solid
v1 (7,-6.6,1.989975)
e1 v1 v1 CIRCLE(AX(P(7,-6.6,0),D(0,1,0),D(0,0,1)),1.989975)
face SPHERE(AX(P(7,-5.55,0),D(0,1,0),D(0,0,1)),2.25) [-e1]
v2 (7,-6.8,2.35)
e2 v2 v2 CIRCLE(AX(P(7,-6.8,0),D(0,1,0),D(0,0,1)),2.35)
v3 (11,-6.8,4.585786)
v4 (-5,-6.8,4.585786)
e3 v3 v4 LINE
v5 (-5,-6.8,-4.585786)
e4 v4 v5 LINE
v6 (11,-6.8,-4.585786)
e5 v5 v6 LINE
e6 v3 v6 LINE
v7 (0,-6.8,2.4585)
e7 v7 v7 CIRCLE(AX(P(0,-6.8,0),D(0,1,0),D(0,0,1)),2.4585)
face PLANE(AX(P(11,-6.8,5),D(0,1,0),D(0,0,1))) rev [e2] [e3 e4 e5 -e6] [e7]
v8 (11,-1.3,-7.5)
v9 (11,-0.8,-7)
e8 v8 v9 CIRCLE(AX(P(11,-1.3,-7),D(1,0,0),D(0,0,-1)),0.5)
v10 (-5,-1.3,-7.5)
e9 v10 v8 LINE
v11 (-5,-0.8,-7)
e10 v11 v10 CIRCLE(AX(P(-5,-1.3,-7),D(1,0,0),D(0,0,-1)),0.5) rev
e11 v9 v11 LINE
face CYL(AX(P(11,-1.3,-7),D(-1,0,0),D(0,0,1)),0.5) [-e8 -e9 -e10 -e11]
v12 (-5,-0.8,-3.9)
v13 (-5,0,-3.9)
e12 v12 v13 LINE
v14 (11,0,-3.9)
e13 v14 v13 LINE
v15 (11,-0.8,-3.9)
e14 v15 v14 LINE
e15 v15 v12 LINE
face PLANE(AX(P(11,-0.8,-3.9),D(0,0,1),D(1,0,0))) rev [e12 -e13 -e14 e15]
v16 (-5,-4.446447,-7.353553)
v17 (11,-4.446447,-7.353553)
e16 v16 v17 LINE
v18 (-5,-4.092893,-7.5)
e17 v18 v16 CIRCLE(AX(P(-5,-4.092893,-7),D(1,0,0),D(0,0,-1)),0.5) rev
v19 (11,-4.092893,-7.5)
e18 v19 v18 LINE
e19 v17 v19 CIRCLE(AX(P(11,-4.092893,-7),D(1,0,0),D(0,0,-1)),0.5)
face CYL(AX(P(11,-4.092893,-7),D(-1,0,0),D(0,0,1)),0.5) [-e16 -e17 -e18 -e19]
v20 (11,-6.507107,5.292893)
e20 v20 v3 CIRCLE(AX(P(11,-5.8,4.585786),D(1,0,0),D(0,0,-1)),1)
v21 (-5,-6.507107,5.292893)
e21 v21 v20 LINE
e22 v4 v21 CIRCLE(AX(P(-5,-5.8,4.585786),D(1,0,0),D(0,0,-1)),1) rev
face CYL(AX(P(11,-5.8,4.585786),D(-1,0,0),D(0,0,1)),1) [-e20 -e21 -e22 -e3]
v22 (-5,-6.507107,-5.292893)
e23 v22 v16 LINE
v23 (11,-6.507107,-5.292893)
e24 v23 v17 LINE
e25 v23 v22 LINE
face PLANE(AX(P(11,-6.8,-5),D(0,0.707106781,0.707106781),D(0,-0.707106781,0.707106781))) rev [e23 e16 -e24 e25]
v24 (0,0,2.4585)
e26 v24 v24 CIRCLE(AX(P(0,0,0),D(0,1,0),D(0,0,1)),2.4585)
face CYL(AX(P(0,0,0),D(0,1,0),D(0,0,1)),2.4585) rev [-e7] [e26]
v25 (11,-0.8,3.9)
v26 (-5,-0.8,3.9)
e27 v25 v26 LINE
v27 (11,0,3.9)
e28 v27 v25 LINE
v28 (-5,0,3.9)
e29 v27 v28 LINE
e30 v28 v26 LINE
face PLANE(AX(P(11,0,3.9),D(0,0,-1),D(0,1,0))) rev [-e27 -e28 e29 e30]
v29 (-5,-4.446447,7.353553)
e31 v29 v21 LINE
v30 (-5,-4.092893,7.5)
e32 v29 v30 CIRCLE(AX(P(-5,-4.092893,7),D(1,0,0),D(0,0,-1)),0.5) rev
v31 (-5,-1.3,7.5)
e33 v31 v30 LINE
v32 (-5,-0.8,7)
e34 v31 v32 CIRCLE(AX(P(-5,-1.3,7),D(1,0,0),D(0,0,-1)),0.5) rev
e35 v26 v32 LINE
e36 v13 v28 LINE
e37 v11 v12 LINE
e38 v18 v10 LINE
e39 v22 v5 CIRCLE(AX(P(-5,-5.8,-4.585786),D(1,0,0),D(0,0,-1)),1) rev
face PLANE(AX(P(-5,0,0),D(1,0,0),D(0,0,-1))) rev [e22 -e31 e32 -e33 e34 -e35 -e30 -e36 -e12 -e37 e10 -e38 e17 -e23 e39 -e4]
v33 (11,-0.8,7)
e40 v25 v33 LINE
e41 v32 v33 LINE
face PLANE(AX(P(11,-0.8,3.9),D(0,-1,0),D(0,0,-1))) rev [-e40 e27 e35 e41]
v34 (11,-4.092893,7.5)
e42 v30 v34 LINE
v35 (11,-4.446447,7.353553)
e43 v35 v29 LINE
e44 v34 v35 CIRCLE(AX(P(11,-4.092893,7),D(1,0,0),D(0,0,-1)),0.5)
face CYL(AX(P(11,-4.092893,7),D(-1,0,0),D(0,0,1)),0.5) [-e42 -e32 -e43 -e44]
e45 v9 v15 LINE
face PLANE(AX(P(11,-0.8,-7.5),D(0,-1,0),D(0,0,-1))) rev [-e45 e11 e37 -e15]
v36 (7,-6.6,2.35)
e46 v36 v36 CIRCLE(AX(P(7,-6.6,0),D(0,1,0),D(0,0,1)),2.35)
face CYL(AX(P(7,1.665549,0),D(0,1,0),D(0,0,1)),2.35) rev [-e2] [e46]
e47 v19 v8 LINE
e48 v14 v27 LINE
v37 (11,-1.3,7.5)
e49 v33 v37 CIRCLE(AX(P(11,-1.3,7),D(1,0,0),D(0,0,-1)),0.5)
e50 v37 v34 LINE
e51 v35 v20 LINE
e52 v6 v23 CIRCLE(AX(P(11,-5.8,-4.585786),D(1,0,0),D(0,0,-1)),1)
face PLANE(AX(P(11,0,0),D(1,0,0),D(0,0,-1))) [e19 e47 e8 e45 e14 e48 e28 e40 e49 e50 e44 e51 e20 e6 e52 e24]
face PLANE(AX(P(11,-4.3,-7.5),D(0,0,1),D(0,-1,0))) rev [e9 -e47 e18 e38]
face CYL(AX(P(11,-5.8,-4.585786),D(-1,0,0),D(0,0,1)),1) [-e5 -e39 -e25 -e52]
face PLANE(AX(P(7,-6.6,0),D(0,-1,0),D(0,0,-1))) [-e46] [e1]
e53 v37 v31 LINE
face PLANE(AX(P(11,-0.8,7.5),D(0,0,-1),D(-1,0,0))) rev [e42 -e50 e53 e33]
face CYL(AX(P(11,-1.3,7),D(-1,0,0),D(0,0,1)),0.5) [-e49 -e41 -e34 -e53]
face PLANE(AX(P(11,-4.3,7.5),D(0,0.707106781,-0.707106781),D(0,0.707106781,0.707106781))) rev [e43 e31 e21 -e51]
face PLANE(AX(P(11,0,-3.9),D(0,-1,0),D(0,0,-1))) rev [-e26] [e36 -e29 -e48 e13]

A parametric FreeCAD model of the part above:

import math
import FreeCAD as App
import Part
import Sketcher
Q = App.Units.Quantity


def edges_at(feature, points):
    """Names of the edges that pass closest to the given points."""
    edges = feature.Shape.Edges
    near = lambda p: min(range(len(edges)), key=lambda i: edges[i].distToShape(Part.Vertex(*p))[0])
    return sorted({f"Edge{near(p) + 1}" for p in points})

doc = App.newDocument("Part")
params = doc.addObject("Spreadsheet::Sheet", "Params")
for row, (alias, value) in enumerate([
    ("sketch1_height", "10 mm"),
    ("sketch1_width", "0.8 mm"),
    ("sketch1_width2", "3.5 mm"),
    ("sketch1_height2", "7.8 mm"),
    ("sketch1_height3", "3.6 mm"),
    ("pad1_length", "16 mm"),
    ("fillet_radius", "1 mm"),
    ("fillet2_radius", "0.5 mm"),
    ("sketch2_width", "0.2 mm"),
    ("sketch2_height", "2.35 mm"),
    ("groove_angle", "360 deg"),
    ("sketch3_radius", "2.25 mm"),
    ("sketch3_width", "1.2 mm"),
    ("revolution_angle", "360 deg"),
    ("hole_diameter", "4.917 mm"),
], start=1):
    params.set(f"A{row}", alias)
    params.set(f"B{row}", "=" + value)
    params.setAlias(f"B{row}", alias)

body = doc.addObject("PartDesign::Body", "Body")

# Sketch on YZ plane
sketch1 = body.newObject("Sketcher::SketchObject", "Sketch")
sketch1.AttachmentSupport = (doc.getObject("YZ_Plane"), [""])
sketch1.MapMode = "FlatFace"
sketch1.AttachmentOffset = App.Placement(App.Vector(0, 0, -5), App.Rotation())
sketch1.addGeometry([
    Part.LineSegment(App.Vector(0, -3.9, 0), App.Vector(0, 3.9, 0)),  # 0
    Part.LineSegment(App.Vector(0, 3.9, 0), App.Vector(-0.8, 3.9, 0)),  # 1
    Part.LineSegment(App.Vector(-0.8, 3.9, 0), App.Vector(-0.8, 7.5, 0)),  # 2
    Part.LineSegment(App.Vector(-0.8, 7.5, 0), App.Vector(-4.3, 7.5, 0)),  # 3
    Part.LineSegment(App.Vector(-4.3, 7.5, 0), App.Vector(-6.8, 5, 0)),  # 4
    Part.LineSegment(App.Vector(-6.8, 5, 0), App.Vector(-6.8, -5, 0)),  # 5
    Part.LineSegment(App.Vector(-6.8, -5, 0), App.Vector(-4.3, -7.5, 0)),  # 6
    Part.LineSegment(App.Vector(-4.3, -7.5, 0), App.Vector(-0.8, -7.5, 0)),  # 7
    Part.LineSegment(App.Vector(-0.8, -7.5, 0), App.Vector(-0.8, -3.9, 0)),  # 8
    Part.LineSegment(App.Vector(-0.8, -3.9, 0), App.Vector(0, -3.9, 0)),  # 9
], False)
sketch1.addConstraint([
    Sketcher.Constraint("Coincident", 0, 2, 1, 1),
    Sketcher.Constraint("Coincident", 1, 2, 2, 1),
    Sketcher.Constraint("Coincident", 2, 2, 3, 1),
    Sketcher.Constraint("Coincident", 3, 2, 4, 1),
    Sketcher.Constraint("Coincident", 4, 2, 5, 1),
    Sketcher.Constraint("Coincident", 5, 2, 6, 1),
    Sketcher.Constraint("Coincident", 6, 2, 7, 1),
    Sketcher.Constraint("Coincident", 7, 2, 8, 1),
    Sketcher.Constraint("Coincident", 8, 2, 9, 1),
    Sketcher.Constraint("Coincident", 9, 2, 0, 1),
    Sketcher.Constraint("Vertical", 0),
    Sketcher.Constraint("Horizontal", 1),
    Sketcher.Constraint("Vertical", 2),
    Sketcher.Constraint("Horizontal", 3),
    Sketcher.Constraint("Vertical", 5),
    Sketcher.Constraint("Horizontal", 7),
    Sketcher.Constraint("Vertical", 8),
    Sketcher.Constraint("Horizontal", 9),
    Sketcher.Constraint("Symmetric", 0, 2, 9, 2, -1, 1),
    Sketcher.Constraint("Symmetric", 3, 2, 6, 2, -1),
    Sketcher.Constraint("Perpendicular", 4, 6),
    Sketcher.Constraint("Vertical", 2, 2, 7, 2),
    Sketcher.Constraint("Equal", 4, 6),
    Sketcher.Constraint("DistanceY", 5, 2, 5, 1, Q("10 mm")),
    Sketcher.Constraint("DistanceX", 1, 2, 1, 1, Q("0.8 mm")),
    Sketcher.Constraint("DistanceX", 3, 2, 3, 1, Q("3.5 mm")),
    Sketcher.Constraint("DistanceY", 0, 1, 0, 2, Q("7.8 mm")),
    Sketcher.Constraint("DistanceY", 2, 1, 2, 2, Q("3.6 mm")),
])
sketch1.setExpression("Constraints[23]", "Params.sketch1_height")
sketch1.setExpression("Constraints[24]", "Params.sketch1_width")
sketch1.setExpression("Constraints[25]", "Params.sketch1_width2")
sketch1.setExpression("Constraints[26]", "Params.sketch1_height2")
sketch1.setExpression("Constraints[27]", "Params.sketch1_height3")
pad1 = body.newObject("PartDesign::Pad", "Pad")
pad1.Profile = sketch1
pad1.setExpression("Length", "Params.pad1_length")
doc.recompute()

fillet = body.newObject("PartDesign::Fillet", "Fillet")
fillet.Base = (pad1, edges_at(pad1, [(3, -6.8, -5), (3, -6.8, 5)]))
fillet.setExpression("Radius", "Params.fillet_radius")
doc.recompute()

fillet2 = body.newObject("PartDesign::Fillet", "Fillet001")
fillet2.Base = (fillet, edges_at(fillet, [
    (3, -0.8, 7.5),
    (3, -0.8, -7.5),
    (3, -4.3, -7.5),
    (3, -4.3, 7.5),
]))
fillet2.setExpression("Radius", "Params.fillet2_radius")

# Sketch on YZ plane
sketch2 = body.newObject("Sketcher::SketchObject", "Sketch001")
sketch2.AttachmentSupport = (doc.getObject("YZ_Plane"), [""])
sketch2.MapMode = "FlatFace"
sketch2.AttachmentOffset = App.Placement(App.Vector(0, 0, 7), App.Rotation())
sketch2.addGeometry([
    Part.LineSegment(App.Vector(-6.6, 0, 0), App.Vector(-6.8, 0, 0)),
    Part.LineSegment(App.Vector(-6.8, 0, 0), App.Vector(-6.8, -2.35, 0)),
    Part.LineSegment(App.Vector(-6.8, -2.35, 0), App.Vector(-6.6, -2.35, 0)),
    Part.LineSegment(App.Vector(-6.6, -2.35, 0), App.Vector(-6.6, 0, 0)),
], False)
sketch2.addConstraint([
    Sketcher.Constraint("Coincident", 0, 2, 1, 1),
    Sketcher.Constraint("Coincident", 1, 2, 2, 1),
    Sketcher.Constraint("Coincident", 2, 2, 3, 1),
    Sketcher.Constraint("Coincident", 3, 2, 0, 1),
    Sketcher.Constraint("Horizontal", 0),
    Sketcher.Constraint("Vertical", 1),
    Sketcher.Constraint("Horizontal", 2),
    Sketcher.Constraint("Vertical", 3),
    Sketcher.Constraint("PointOnObject", 0, 2, -1),
    Sketcher.Constraint("DistanceX", 0, 2, 0, 1, Q("0.2 mm")),
    Sketcher.Constraint("DistanceY", 1, 2, 1, 1, Q("2.35 mm")),
    Sketcher.Constraint("DistanceX", 0, 2, -1, 1, Q("6.8 mm")),
])
sketch2.setExpression("Constraints[9]", "Params.sketch2_width")
sketch2.setExpression("Constraints[10]", "Params.sketch2_height")
groove = body.newObject("PartDesign::Groove", "Groove")
groove.Profile = sketch2
groove.ReferenceAxis = (sketch2, ["H_Axis"])
groove.setExpression("Angle", "Params.groove_angle")

# Sketch on YZ plane
sketch3 = body.newObject("Sketcher::SketchObject", "Sketch002")
sketch3.AttachmentSupport = (doc.getObject("YZ_Plane"), [""])
sketch3.MapMode = "FlatFace"
sketch3.AttachmentOffset = App.Placement(App.Vector(0, 0, 7), App.Rotation())
sketch3.addGeometry([
    Part.LineSegment(App.Vector(-6.6, -2, 0), App.Vector(-6.6, 0, 0)),
    Part.LineSegment(App.Vector(-6.6, 0, 0), App.Vector(-7.8, 0, 0)),
    Part.ArcOfCircle(Part.Circle(App.Vector(-5.6, 0, 0), App.Vector(0, 0, 1), 2.2), math.radians(180), math.radians(242)),
], False)
sketch3.addConstraint([
    Sketcher.Constraint("Coincident", 0, 2, 1, 1),
    Sketcher.Constraint("Coincident", 1, 2, 2, 1),
    Sketcher.Constraint("Coincident", 2, 2, 0, 1),
    Sketcher.Constraint("Vertical", 0),
    Sketcher.Constraint("Horizontal", 1),
    Sketcher.Constraint("PointOnObject", 2, 3, -1),
    Sketcher.Constraint("PointOnObject", 0, 2, -1),
    Sketcher.Constraint("Radius", 2, Q("2.25 mm")),
    Sketcher.Constraint("DistanceX", 1, 2, 1, 1, Q("1.2 mm")),
    Sketcher.Constraint("DistanceX", 0, 2, -1, 1, Q("6.6 mm")),
])
sketch3.setExpression("Constraints[7]", "Params.sketch3_radius")
sketch3.setExpression("Constraints[8]", "Params.sketch3_width")
revolution = body.newObject("PartDesign::Revolution", "Revolution")
revolution.Profile = sketch3
revolution.ReferenceAxis = (sketch3, ["H_Axis"])
revolution.setExpression("Angle", "Params.revolution_angle")

# Sketch on XZ plane
sketch4 = body.newObject("Sketcher::SketchObject", "Sketch003")
sketch4.AttachmentSupport = (doc.getObject("XZ_Plane"), [""])
sketch4.MapMode = "FlatFace"
sketch4.addGeometry(Part.Circle(App.Vector(0, 0, 0), App.Vector(0, 0, 1), 2.5), False)
sketch4.addConstraint([
    Sketcher.Constraint("Coincident", 0, 3, -1, 1),
    Sketcher.Constraint("Diameter", 0, Q("4.917 mm")),
])
doc.recompute()
hole = body.newObject("PartDesign::Hole", "Hole")
hole.Profile = sketch4
hole.ThreadType = "None"
hole.setExpression("Diameter", "Params.hole_diameter")
hole.DepthType = "ThroughAll"
hole.Reversed = True

doc.recompute()
